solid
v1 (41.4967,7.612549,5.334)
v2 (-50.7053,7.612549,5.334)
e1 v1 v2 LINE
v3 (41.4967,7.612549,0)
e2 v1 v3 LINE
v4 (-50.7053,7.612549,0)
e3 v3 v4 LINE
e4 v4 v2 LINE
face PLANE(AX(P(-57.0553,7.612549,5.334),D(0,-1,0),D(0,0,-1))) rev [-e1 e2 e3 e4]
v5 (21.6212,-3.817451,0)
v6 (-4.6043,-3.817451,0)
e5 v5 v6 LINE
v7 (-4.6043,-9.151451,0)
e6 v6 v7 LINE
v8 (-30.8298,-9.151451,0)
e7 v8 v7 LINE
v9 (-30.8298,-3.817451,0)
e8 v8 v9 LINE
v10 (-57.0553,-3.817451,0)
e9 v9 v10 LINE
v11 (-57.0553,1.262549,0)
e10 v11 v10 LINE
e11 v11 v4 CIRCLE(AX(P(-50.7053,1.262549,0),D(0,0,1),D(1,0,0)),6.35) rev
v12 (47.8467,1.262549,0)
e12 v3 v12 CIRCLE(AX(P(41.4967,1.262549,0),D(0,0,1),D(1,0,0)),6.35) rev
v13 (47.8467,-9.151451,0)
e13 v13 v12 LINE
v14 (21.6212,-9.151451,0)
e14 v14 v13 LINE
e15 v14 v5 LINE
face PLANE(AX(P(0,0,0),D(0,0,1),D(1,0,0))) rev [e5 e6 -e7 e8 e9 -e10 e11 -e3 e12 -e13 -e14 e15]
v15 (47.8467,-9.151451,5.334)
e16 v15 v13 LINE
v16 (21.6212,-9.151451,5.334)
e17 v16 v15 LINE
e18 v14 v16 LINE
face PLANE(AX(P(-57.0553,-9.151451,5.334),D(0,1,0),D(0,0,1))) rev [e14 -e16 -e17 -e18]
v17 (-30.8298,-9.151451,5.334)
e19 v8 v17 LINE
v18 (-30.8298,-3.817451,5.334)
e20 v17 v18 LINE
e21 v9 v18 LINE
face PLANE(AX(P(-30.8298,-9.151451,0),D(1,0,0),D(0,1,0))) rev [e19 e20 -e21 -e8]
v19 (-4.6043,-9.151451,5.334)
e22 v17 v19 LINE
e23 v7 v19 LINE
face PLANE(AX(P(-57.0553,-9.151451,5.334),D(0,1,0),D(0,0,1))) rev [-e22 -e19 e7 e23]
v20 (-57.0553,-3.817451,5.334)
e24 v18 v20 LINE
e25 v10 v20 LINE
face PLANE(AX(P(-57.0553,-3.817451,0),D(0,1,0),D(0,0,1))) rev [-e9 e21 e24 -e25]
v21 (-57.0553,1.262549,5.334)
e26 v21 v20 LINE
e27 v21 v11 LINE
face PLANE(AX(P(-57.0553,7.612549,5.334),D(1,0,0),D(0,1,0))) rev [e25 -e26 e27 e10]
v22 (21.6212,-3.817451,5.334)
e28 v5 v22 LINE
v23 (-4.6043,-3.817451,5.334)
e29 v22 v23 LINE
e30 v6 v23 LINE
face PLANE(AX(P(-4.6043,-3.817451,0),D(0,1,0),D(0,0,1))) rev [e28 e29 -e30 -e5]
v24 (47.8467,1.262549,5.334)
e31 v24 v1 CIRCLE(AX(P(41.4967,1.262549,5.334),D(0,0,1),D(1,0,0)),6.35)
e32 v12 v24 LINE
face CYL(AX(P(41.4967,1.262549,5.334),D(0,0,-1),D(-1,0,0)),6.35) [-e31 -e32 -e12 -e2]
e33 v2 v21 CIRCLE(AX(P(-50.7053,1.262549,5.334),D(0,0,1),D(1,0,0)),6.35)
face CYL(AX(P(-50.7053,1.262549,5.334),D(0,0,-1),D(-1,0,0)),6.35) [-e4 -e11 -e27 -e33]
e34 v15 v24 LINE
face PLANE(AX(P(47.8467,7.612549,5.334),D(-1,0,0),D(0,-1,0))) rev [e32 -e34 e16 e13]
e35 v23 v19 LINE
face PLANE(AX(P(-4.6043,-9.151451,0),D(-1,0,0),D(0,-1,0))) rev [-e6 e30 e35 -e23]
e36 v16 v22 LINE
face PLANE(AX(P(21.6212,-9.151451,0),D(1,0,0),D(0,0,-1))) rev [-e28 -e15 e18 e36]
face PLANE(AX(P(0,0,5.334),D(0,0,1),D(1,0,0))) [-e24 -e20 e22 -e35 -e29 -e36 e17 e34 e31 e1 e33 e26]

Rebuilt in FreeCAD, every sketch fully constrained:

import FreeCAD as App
import Part
import Sketcher

V = App.Vector
Q = App.Units.Quantity


def edges_at(feature, points):
    """Names of the edges that pass closest to the given points."""
    edges = feature.Shape.Edges
    near = lambda p: min(range(len(edges)), key=lambda i: edges[i].distToShape(Part.Vertex(*p))[0])
    return sorted({f"Edge{near(p) + 1}" for p in points})

doc = App.newDocument("Part")
body = doc.addObject("PartDesign::Body", "Body")

# Sketch on XY plane
sketch1 = doc.addObject("Sketcher::SketchObject", "Sketch")
body.addObject(sketch1)
sketch1.AttachmentSupport = (doc.XY_Plane, [""])
sketch1.MapMode = "FlatFace"
sketch1.addGeometry([
    Part.LineSegment(V(-57, 8, 0), V(-57, -9, 0)),
    Part.LineSegment(V(-57, -9, 0), V(48, -9, 0)),
    Part.LineSegment(V(48, -9, 0), V(48, 8, 0)),
    Part.LineSegment(V(48, 8, 0), V(-57, 8, 0)),
], False)
sketch1.addConstraint([
    Sketcher.Constraint("Coincident", 0, 2, 1, 1),
    Sketcher.Constraint("Coincident", 1, 2, 2, 1),
    Sketcher.Constraint("Coincident", 2, 2, 3, 1),
    Sketcher.Constraint("Coincident", 3, 2, 0, 1),
    Sketcher.Constraint("Vertical", 0),
    Sketcher.Constraint("Horizontal", 1),
    Sketcher.Constraint("Vertical", 2),
    Sketcher.Constraint("Horizontal", 3),
    Sketcher.Constraint("DistanceX", 1, 1, 1, 2, Q("4.13 in")),
    Sketcher.Constraint("DistanceY", 0, 2, 0, 1, Q("0.66 in")),
    Sketcher.Constraint("DistanceX", 0, 2, -1, 1, Q("57.0553 mm")),
    Sketcher.Constraint("DistanceY", 0, 2, -1, 1, Q("9.151451 mm")),
])
pad1 = doc.addObject("PartDesign::Pad", "Pad")
body.addObject(pad1)
pad1.Profile = sketch1
pad1.Length = Q("0.21 in")

# Sketch on XY plane
sketch2 = doc.addObject("Sketcher::SketchObject", "Sketch001")
body.addObject(sketch2)
sketch2.AttachmentSupport = (doc.XY_Plane, [""])
sketch2.MapMode = "FlatFace"
sketch2.AttachmentOffset = App.Placement(V(0, 0, 0.21 * 25.4), App.Rotation())
sketch2.addGeometry([
    Part.LineSegment(V(-57, -4, 0), V(-57, -9, 0)),  # 0
    Part.LineSegment(V(-57, -9, 0), V(-31, -9, 0)),  # 1
    Part.LineSegment(V(-31, -9, 0), V(-31, -4, 0)),  # 2
    Part.LineSegment(V(-31, -4, 0), V(-57, -4, 0)),  # 3
    Part.LineSegment(V(-5, -4, 0), V(-5, -9, 0)),  # 4
    Part.LineSegment(V(-5, -9, 0), V(22, -9, 0)),  # 5
    Part.LineSegment(V(22, -9, 0), V(22, -4, 0)),  # 6
    Part.LineSegment(V(22, -4, 0), V(-5, -4, 0)),  # 7
], False)
sketch2.addConstraint([
    Sketcher.Constraint("Coincident", 0, 2, 1, 1),
    Sketcher.Constraint("Coincident", 1, 2, 2, 1),
    Sketcher.Constraint("Coincident", 2, 2, 3, 1),
    Sketcher.Constraint("Coincident", 3, 2, 0, 1),
    Sketcher.Constraint("Coincident", 4, 2, 5, 1),
    Sketcher.Constraint("Coincident", 5, 2, 6, 1),
    Sketcher.Constraint("Coincident", 6, 2, 7, 1),
    Sketcher.Constraint("Coincident", 7, 2, 4, 1),
    Sketcher.Constraint("Vertical", 0),
    Sketcher.Constraint("Horizontal", 1),
    Sketcher.Constraint("Vertical", 2),
    Sketcher.Constraint("Horizontal", 3),
    Sketcher.Constraint("Vertical", 4),
    Sketcher.Constraint("Horizontal", 5),
    Sketcher.Constraint("Vertical", 6),
    Sketcher.Constraint("Horizontal", 7),
    Sketcher.Constraint("Horizontal", 1, 2, 4, 2),
    Sketcher.Constraint("Horizontal", 3, 2, 6, 2),
    Sketcher.Constraint("Equal", 3, 5),
    Sketcher.Constraint("DistanceY", 0, 2, 0, 1, Q("0.21 in")),
    Sketcher.Constraint("DistanceX", 1, 1, 1, 2, Q("1.0325 in")),
    Sketcher.Constraint("DistanceX", 0, 2, 4, 2, Q("2.065 in")),
    Sketcher.Constraint("DistanceX", 0, 2, -1, 1, Q("57.0553 mm")),
    Sketcher.Constraint("DistanceY", 0, 2, -1, 1, Q("9.151451 mm")),
])
pocket1 = doc.addObject("PartDesign::Pocket", "Pocket")
body.addObject(pocket1)
pocket1.Profile = sketch2
pocket1.Type = "ThroughAll"
doc.recompute()

fillet = doc.addObject("PartDesign::Fillet", "Fillet")
body.addObject(fillet)
fillet.Base = (pocket1, edges_at(pocket1, [(-57.055, 7.613, 2.667), (47.847, 7.613, 2.667)]))
fillet.Radius = Q("0.25 in")

doc.recompute()
